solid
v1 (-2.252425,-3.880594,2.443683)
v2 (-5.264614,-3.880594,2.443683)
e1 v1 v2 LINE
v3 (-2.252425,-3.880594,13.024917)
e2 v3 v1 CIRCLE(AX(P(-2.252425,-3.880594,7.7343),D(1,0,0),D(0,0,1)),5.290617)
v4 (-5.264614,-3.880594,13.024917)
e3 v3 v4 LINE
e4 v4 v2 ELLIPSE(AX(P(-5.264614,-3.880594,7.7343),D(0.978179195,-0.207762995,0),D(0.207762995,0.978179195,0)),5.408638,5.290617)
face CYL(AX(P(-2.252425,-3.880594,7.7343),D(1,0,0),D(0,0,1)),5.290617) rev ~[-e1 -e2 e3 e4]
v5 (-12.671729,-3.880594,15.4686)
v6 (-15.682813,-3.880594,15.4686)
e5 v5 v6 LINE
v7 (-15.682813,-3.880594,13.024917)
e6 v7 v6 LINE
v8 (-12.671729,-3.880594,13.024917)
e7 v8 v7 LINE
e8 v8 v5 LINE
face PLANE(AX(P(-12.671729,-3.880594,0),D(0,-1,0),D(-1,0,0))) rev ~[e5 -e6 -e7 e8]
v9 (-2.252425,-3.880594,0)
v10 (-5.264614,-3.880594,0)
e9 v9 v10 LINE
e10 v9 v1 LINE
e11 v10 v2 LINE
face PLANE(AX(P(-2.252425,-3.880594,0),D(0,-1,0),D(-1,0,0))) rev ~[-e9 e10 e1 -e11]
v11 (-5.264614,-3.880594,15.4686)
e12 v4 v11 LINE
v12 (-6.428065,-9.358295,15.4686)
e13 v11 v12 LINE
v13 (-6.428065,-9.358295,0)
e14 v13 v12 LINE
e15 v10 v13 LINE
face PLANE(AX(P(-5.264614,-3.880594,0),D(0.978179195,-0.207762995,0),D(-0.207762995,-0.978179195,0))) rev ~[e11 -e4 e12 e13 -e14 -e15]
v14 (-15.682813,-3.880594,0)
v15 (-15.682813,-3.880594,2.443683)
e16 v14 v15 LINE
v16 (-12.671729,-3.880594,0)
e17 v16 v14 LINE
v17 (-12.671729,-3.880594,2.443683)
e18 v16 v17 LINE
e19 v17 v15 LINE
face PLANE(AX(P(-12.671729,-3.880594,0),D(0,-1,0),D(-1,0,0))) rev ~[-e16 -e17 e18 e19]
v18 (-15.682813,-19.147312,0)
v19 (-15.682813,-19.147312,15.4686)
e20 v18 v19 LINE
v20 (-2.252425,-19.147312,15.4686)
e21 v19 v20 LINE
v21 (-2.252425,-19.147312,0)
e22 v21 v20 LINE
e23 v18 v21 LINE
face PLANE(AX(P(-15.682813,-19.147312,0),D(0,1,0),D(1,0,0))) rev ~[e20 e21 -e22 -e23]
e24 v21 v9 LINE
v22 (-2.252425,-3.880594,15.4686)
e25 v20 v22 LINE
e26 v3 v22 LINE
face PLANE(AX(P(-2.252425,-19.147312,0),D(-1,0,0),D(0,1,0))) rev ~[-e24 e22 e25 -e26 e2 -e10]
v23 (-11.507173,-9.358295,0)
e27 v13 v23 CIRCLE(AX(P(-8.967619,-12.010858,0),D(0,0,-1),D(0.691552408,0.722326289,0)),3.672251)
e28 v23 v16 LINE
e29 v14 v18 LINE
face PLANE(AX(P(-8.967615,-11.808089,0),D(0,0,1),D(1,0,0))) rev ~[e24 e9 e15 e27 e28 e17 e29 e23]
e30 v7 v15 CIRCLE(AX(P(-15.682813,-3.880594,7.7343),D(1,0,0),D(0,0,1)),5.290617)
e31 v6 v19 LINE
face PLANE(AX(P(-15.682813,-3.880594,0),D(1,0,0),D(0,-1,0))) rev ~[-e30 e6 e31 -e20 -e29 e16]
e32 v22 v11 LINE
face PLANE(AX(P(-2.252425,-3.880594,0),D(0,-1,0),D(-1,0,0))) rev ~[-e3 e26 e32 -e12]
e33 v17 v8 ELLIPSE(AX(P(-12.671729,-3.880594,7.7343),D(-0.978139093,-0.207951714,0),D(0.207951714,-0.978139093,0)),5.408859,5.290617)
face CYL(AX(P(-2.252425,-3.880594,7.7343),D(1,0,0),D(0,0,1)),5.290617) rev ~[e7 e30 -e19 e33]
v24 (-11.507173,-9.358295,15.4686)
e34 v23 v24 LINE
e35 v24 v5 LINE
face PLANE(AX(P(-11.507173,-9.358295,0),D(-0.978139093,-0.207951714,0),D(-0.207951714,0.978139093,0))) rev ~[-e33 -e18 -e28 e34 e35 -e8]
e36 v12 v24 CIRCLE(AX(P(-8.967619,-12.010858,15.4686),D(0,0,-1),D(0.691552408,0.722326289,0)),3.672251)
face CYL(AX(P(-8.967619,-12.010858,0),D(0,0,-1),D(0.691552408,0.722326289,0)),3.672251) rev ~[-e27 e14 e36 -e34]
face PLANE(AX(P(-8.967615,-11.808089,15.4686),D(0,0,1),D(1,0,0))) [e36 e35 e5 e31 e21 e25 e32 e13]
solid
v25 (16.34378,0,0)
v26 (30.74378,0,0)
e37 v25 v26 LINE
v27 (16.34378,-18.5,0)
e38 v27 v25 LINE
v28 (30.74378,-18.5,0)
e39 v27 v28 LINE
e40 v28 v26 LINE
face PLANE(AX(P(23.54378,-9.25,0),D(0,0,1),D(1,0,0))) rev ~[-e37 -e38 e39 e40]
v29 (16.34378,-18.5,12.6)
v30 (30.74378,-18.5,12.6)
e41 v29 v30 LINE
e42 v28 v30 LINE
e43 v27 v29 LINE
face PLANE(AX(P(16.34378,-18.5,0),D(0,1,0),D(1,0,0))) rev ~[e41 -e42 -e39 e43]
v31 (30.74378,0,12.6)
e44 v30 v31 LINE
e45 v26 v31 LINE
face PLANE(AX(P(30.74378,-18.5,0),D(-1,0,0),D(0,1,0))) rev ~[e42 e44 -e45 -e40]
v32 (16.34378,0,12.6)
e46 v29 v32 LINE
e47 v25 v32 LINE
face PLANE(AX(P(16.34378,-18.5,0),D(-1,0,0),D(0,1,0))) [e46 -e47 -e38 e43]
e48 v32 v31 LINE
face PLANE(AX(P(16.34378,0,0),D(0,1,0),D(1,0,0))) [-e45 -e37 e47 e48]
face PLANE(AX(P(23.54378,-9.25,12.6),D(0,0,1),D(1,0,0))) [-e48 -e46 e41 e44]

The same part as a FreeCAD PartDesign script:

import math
import FreeCAD as App
import Part
import Sketcher

V = App.Vector
Q = App.Units.Quantity

doc = App.newDocument("Part")
body = doc.addObject("PartDesign::Body", "Body")

sketch1 = body.newObject("Sketcher::SketchObject", "Sketch")
sketch1.AttachmentSupport = (doc.getObject("XY_Plane"), [""])
sketch1.MapMode = "FlatFace"
sketch1.addGeometry([
    Part.LineSegment(V(-12.7, -3.9, 0), V(-15.7, -3.9, 0)),
    Part.LineSegment(V(-15.7, -3.9, 0), V(-15.7, -19.1, 0)),
    Part.LineSegment(V(-15.7, -19.1, 0), V(-2.3, -19.1, 0)),
    Part.LineSegment(V(-2.3, -19.1, 0), V(-2.3, -3.9, 0)),
    Part.LineSegment(V(-2.3, -3.9, 0), V(-5.3, -3.9, 0)),
    Part.LineSegment(V(-5.3, -3.9, 0), V(-6.4, -9.4, 0)),
    Part.ArcOfCircle(Part.Circle(V(-9, -12, 0), V(0, 0, 1), 3.7), math.radians(134), math.radians(406)),
    Part.LineSegment(V(-11.5, -9.4, 0), V(-12.7, -3.9, 0)),
], False)
sketch1.addConstraint([
    Sketcher.Constraint("Coincident", 0, 2, 1, 1),
    Sketcher.Constraint("Coincident", 1, 2, 2, 1),
    Sketcher.Constraint("Coincident", 2, 2, 3, 1),
    Sketcher.Constraint("Coincident", 3, 2, 4, 1),
    Sketcher.Constraint("Coincident", 4, 2, 5, 1),
    Sketcher.Constraint("Coincident", 5, 2, 6, 2),
    Sketcher.Constraint("Coincident", 6, 1, 7, 1),
    Sketcher.Constraint("Coincident", 7, 2, 0, 1),
    Sketcher.Constraint("Horizontal", 0),
    Sketcher.Constraint("Vertical", 1),
    Sketcher.Constraint("Horizontal", 2),
    Sketcher.Constraint("Vertical", 3),
    Sketcher.Constraint("Horizontal", 4),
    Sketcher.Constraint("Horizontal", 0, 2, 3, 2),
    Sketcher.Constraint("Horizontal", 5, 2, 6, 1),
    Sketcher.Constraint("Radius", 6, Q("3.672251 mm")),
    Sketcher.Constraint("DistanceX", 4, 2, 4, 1, Q("3.012189 mm")),
    Sketcher.Constraint("DistanceY", 1, 2, 1, 1, Q("15.266718 mm")),
    Sketcher.Constraint("DistanceX", 0, 2, 4, 2, Q("10.418199 mm")),
    Sketcher.Constraint("DistanceY", 5, 2, 4, 2, Q("5.477701 mm")),
    Sketcher.Constraint("DistanceX", 0, 2, 0, 1, Q("3.011084 mm")),
    Sketcher.Constraint("DistanceX", 6, 3, -1, 1, Q("8.967619 mm")),
    Sketcher.Constraint("DistanceY", 6, 3, -1, 1, Q("12.010858 mm")),
    Sketcher.Constraint("DistanceX", 7, 2, -1, 1, Q("12.671729 mm")),
    Sketcher.Constraint("DistanceX", 5, 2, 4, 2, Q("1.163451 mm")),
])
pad1 = body.newObject("PartDesign::Pad", "Pad")
pad1.Profile = sketch1
pad1.Length = 15.4686

sketch2 = body.newObject("Sketcher::SketchObject", "Sketch001")
sketch2.AttachmentSupport = (doc.getObject("YZ_Plane"), [""])
sketch2.MapMode = "FlatFace"
sketch2.AttachmentOffset = App.Placement(V(0, 0, -2.252425), App.Rotation())
sketch2.addGeometry([
    Part.ArcOfCircle(Part.Circle(V(-4, 8, 0), V(0, 0, 1), 5), math.radians(90), math.radians(270)),
    Part.LineSegment(V(-4, 2, 0), V(-4, 13, 0)),
], False)
sketch2.addConstraint([
    Sketcher.Constraint("Coincident", 0, 1, 1, 2),
    Sketcher.Constraint("Coincident", 1, 1, 0, 2),
    Sketcher.Constraint("Vertical", 1),
    Sketcher.Constraint("Radius", 0, Q("5.290617 mm")),
    Sketcher.Constraint("DistanceY", -1, 1, 0, 3, Q("7.7343 mm")),
    Sketcher.Constraint("DistanceX", 0, 3, -1, 1, Q("3.880594 mm")),
    Sketcher.Constraint("DistanceX", 0, 1, -1, 1, Q("3.880594 mm")),
])
pocket1 = body.newObject("PartDesign::Pocket", "Pocket")
pocket1.Profile = sketch2
pocket1.Length = 25.4
body2 = doc.addObject("PartDesign::Body", "Body001")

sketch3 = body2.newObject("Sketcher::SketchObject", "Sketch002")
sketch3.AttachmentSupport = (doc.getObject("XY_Plane001"), [""])
sketch3.MapMode = "FlatFace"
sketch3.addGeometry([
    Part.LineSegment(V(16, 0, 0), V(16, -18, 0)),
    Part.LineSegment(V(16, -18, 0), V(31, -18, 0)),
    Part.LineSegment(V(31, -18, 0), V(31, 0, 0)),
    Part.LineSegment(V(31, 0, 0), V(16, 0, 0)),
], False)
sketch3.addConstraint([
    Sketcher.Constraint("Coincident", 0, 2, 1, 1),
    Sketcher.Constraint("Coincident", 1, 2, 2, 1),
    Sketcher.Constraint("Coincident", 2, 2, 3, 1),
    Sketcher.Constraint("Coincident", 3, 2, 0, 1),
    Sketcher.Constraint("Vertical", 0),
    Sketcher.Constraint("Horizontal", 1),
    Sketcher.Constraint("Vertical", 2),
    Sketcher.Constraint("Horizontal", 3),
    Sketcher.Constraint("PointOnObject", 2, 2, -1),
    Sketcher.Constraint("DistanceX", 1, 1, 1, 2, Q("14.4 mm")),
    Sketcher.Constraint("DistanceY", 0, 2, 0, 1, Q("18.5 mm")),
    Sketcher.Constraint("DistanceX", -1, 1, 0, 2, Q("16.34378 mm")),
])
pad2 = body2.newObject("PartDesign::Pad", "Pad001")
pad2.Profile = sketch3
pad2.Length = 12.6

doc.recompute()
